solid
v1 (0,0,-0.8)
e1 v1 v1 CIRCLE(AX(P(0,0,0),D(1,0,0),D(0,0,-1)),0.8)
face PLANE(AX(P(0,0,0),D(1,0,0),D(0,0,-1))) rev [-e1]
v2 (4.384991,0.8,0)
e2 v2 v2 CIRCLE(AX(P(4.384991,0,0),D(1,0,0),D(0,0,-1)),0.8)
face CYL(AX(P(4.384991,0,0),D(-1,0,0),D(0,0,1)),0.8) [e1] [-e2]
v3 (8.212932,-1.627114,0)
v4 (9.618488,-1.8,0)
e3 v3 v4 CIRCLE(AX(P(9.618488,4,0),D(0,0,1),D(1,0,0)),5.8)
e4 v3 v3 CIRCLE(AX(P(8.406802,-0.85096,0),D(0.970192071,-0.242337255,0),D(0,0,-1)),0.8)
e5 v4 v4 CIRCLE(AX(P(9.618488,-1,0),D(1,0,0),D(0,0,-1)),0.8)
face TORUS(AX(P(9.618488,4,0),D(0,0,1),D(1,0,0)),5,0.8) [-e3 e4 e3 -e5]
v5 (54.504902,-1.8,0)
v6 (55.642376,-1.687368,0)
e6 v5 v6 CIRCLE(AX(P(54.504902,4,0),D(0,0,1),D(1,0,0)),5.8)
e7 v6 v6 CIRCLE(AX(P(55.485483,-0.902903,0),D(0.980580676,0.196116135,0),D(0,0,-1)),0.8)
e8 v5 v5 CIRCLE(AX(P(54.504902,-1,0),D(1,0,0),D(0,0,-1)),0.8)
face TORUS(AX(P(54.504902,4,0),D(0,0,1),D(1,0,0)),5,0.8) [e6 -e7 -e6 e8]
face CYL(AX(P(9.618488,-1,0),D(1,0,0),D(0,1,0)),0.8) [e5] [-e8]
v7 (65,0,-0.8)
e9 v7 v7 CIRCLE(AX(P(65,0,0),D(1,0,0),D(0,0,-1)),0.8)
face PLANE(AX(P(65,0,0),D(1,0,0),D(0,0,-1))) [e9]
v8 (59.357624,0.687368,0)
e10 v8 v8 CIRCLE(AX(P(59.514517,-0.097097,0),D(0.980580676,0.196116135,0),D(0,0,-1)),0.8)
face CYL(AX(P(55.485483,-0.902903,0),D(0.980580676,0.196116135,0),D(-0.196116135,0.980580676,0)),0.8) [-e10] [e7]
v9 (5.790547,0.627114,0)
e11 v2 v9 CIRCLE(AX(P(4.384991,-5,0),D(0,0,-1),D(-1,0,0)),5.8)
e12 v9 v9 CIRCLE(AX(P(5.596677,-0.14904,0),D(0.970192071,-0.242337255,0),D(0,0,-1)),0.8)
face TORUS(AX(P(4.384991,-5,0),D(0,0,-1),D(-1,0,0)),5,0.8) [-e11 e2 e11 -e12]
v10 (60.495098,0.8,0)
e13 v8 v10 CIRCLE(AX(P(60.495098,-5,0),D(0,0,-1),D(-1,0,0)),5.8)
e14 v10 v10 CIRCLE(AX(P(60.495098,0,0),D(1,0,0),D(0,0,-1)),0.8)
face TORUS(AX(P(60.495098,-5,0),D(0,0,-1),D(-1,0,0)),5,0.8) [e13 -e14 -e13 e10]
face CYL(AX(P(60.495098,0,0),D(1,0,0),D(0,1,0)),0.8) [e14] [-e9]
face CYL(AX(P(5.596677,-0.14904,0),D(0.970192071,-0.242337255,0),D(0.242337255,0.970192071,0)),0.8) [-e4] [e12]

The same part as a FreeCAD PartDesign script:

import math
import FreeCAD as App
import Part
import Sketcher
Q = App.Units.Quantity

doc = App.newDocument("Part")
body = doc.addObject("PartDesign::Body", "Body")

# Sketch on YZ plane
sketch1 = doc.addObject("Sketcher::SketchObject", "Sketch")
body.addObject(sketch1)
sketch1.AttachmentSupport = (doc.YZ_Plane, [""])
sketch1.MapMode = "FlatFace"
sketch1.addGeometry(Part.Circle(App.Vector(0, 0, 0), App.Vector(0, 0, 1), 0.8), False)
sketch1.addConstraint([
    Sketcher.Constraint("Coincident", 0, 3, -1, 1),
    Sketcher.Constraint("Diameter", 0, Q("1.6 mm")),
])

# Sketch on XY plane
sketch2 = doc.addObject("Sketcher::SketchObject", "Sketch001")
body.addObject(sketch2)
sketch2.AttachmentSupport = (doc.XY_Plane, [""])
sketch2.MapMode = "FlatFace"
sketch2.addGeometry([
    Part.LineSegment(App.Vector(0, 0, 0), App.Vector(4.384991, 0, 0)),  # 0
    Part.ArcOfCircle(Part.Circle(App.Vector(4.384991, -5, 0), App.Vector(0, 0, 1), 5), math.radians(75.975472), math.radians(90)),  # 1
    Part.LineSegment(App.Vector(5.596677, -0.14904, 0), App.Vector(8.406802, -0.85096, 0)),  # 2
    Part.ArcOfCircle(Part.Circle(App.Vector(9.618488, 4, 0), App.Vector(0, 0, 1), 5), math.radians(-104.024528), math.radians(-90)),  # 3
    Part.LineSegment(App.Vector(9.618488, -1, 0), App.Vector(54.504902, -1, 0)),  # 4
    Part.ArcOfCircle(Part.Circle(App.Vector(54.504902, 4, 0), App.Vector(0, 0, 1), 5), math.radians(-90), math.radians(-78.690068)),  # 5
    Part.LineSegment(App.Vector(55.485483, -0.902903, 0), App.Vector(59.514517, -0.097097, 0)),  # 6
    Part.ArcOfCircle(Part.Circle(App.Vector(60.495098, -5, 0), App.Vector(0, 0, 1), 5), math.radians(90), math.radians(101.309932)),  # 7
    Part.LineSegment(App.Vector(60.495098, 0, 0), App.Vector(65, 0, 0)),  # 8
], False)
sketch2.addConstraint([
    Sketcher.Constraint("Tangent", 0, 2, 1, 2),
    Sketcher.Constraint("Tangent", 1, 1, 2, 1),
    Sketcher.Constraint("Tangent", 2, 2, 3, 1),
    Sketcher.Constraint("Tangent", 3, 2, 4, 1),
    Sketcher.Constraint("Tangent", 4, 2, 5, 1),
    Sketcher.Constraint("Tangent", 5, 2, 6, 1),
    Sketcher.Constraint("Tangent", 6, 2, 7, 2),
    Sketcher.Constraint("Tangent", 7, 1, 8, 1),
    Sketcher.Constraint("Horizontal", 0),
    Sketcher.Constraint("Horizontal", 4),
    Sketcher.Constraint("Horizontal", 8),
    Sketcher.Constraint("Coincident", 0, 1, -1, 1),
    Sketcher.Constraint("Equal", 1, 3),
    Sketcher.Constraint("Equal", 3, 5),
    Sketcher.Constraint("Equal", 5, 7),
    Sketcher.Constraint("PointOnObject", 7, 1, -1),
    Sketcher.Constraint("Radius", 1, Q("5 mm")),
    Sketcher.Constraint("DistanceY", -1, 1, 3, 3, Q("4 mm")),
    Sketcher.Constraint("DistanceX", -1, 1, 8, 2, Q("65 mm")),
    Sketcher.Constraint("DistanceX", 0, 1, 0, 2, Q("4.384991 mm")),
    Sketcher.Constraint("DistanceX", -1, 1, 2, 2, Q("8.406802 mm")),
    Sketcher.Constraint("DistanceX", 2, 2, 4, 2, Q("46.098101 mm")),
    Sketcher.Constraint("DistanceX", 8, 1, 8, 2, Q("4.504902 mm")),
])
doc.recompute()

additivepipe = doc.addObject("PartDesign::AdditivePipe", "AdditivePipe")
body.addObject(additivepipe)
additivepipe.Profile = sketch1
additivepipe.Spine = (sketch2, ["Edge1", "Edge2", "Edge3", "Edge4", "Edge5", "Edge6", "Edge7", "Edge8", "Edge9"])

doc.recompute()
